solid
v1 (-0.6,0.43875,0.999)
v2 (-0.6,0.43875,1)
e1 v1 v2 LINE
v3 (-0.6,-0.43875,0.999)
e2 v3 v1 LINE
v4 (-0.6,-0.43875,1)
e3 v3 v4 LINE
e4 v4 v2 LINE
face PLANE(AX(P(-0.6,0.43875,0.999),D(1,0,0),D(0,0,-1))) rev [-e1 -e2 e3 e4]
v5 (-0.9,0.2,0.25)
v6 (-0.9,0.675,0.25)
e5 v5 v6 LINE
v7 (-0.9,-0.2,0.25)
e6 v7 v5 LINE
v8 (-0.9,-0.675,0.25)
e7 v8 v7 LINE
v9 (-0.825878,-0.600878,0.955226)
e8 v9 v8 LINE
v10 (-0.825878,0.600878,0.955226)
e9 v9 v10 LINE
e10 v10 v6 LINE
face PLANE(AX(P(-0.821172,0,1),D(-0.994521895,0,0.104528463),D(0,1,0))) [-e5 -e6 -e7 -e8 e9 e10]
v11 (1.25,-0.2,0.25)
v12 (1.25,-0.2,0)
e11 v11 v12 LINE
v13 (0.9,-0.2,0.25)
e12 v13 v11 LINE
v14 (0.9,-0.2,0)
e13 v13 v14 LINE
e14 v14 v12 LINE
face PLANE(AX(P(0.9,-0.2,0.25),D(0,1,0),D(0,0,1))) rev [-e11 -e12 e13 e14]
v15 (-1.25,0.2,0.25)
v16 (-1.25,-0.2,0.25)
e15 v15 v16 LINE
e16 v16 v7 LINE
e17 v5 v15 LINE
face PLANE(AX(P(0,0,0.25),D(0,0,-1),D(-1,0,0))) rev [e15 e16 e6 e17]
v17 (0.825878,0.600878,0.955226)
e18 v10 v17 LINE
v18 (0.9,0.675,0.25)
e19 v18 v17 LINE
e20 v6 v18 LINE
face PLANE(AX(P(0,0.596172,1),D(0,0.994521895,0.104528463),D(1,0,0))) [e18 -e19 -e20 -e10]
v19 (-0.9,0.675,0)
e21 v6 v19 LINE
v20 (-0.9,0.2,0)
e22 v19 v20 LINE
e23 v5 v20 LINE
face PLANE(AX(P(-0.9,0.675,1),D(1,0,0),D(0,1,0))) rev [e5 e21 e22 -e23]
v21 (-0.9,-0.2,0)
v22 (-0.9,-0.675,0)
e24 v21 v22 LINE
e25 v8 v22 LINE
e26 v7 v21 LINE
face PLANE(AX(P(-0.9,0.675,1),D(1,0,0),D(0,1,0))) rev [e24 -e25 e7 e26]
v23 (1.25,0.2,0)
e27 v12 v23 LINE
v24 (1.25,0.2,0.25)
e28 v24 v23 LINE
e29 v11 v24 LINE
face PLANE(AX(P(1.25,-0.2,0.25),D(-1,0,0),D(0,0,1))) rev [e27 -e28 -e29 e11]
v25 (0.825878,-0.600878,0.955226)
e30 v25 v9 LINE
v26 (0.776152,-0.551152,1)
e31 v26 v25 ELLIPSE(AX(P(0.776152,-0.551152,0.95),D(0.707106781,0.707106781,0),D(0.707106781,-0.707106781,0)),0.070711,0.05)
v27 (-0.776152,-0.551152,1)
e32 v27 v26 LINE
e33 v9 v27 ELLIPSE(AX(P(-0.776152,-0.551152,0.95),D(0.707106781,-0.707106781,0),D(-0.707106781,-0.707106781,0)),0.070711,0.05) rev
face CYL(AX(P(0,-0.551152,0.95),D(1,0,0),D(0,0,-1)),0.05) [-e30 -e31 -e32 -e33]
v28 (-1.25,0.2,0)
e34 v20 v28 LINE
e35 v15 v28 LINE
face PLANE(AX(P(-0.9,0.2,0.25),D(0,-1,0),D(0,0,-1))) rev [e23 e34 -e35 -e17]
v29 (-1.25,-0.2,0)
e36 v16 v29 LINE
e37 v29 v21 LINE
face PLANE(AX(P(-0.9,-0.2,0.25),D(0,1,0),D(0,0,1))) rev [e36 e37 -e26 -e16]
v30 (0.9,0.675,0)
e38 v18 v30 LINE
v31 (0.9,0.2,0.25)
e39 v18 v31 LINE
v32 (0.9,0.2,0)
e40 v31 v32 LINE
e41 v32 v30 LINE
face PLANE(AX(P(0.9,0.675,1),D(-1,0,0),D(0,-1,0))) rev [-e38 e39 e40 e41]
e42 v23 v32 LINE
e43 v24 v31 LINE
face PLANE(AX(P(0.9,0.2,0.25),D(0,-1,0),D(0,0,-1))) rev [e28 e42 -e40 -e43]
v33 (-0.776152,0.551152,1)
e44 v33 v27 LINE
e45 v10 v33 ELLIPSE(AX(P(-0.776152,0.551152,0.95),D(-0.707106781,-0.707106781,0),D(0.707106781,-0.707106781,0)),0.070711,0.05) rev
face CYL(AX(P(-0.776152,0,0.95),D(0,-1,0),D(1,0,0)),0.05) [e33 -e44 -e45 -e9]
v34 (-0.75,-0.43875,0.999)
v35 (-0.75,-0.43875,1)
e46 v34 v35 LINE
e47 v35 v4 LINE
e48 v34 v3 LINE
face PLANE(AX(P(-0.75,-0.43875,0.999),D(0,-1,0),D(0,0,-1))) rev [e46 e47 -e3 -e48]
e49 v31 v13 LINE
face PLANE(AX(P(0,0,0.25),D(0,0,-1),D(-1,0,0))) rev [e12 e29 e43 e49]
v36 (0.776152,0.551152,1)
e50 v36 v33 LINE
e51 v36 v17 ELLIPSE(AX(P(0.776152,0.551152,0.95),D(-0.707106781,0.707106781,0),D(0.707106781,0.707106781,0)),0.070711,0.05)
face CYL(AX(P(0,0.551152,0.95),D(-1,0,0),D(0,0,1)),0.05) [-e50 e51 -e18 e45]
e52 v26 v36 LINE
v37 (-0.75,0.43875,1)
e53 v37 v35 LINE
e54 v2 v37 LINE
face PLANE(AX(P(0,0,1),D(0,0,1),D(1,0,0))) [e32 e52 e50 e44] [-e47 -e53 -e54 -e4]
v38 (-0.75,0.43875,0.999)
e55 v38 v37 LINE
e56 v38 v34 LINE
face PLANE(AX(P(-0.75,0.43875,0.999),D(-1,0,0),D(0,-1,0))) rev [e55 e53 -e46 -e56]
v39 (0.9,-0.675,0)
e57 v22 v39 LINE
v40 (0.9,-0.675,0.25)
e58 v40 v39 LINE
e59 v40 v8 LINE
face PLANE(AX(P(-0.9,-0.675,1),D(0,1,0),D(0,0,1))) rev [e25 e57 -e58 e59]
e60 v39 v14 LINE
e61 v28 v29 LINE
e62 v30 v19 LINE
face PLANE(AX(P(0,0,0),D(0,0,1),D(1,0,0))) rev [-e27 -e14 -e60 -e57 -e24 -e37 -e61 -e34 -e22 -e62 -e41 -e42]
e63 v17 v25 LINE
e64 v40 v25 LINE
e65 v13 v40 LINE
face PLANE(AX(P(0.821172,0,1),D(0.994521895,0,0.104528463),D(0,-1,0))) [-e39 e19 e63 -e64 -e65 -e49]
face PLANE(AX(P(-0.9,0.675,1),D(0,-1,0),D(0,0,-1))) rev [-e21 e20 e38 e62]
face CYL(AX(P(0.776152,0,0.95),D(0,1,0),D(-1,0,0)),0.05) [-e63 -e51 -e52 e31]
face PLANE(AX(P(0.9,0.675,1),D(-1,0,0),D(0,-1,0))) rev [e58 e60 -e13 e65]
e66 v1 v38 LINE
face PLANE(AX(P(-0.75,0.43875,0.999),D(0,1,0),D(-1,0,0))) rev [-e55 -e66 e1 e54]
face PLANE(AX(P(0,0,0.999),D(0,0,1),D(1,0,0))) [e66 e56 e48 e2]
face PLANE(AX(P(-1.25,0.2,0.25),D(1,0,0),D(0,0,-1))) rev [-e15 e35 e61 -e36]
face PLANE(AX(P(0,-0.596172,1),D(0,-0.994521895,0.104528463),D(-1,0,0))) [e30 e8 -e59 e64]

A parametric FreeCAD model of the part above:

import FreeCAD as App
import Part
import Sketcher


def edges_at(feature, points):
    """Names of the edges that pass closest to the given points."""
    edges = feature.Shape.Edges
    near = lambda p: min(range(len(edges)), key=lambda i: edges[i].distToShape(Part.Vertex(*p))[0])
    return sorted({f"Edge{near(p) + 1}" for p in points})


def add_polygon(sketch, points):
    """Adds a closed chain of lines whose ends are joined by coincident constraints."""
    first, n = sketch.GeometryCount, len(points)
    for a, b in zip(points, points[1:] + points[:1]):
        sketch.addGeometry(Part.LineSegment(App.Vector(*a, 0), App.Vector(*b, 0)), False)
    for i in range(n):
        sketch.addConstraint(Sketcher.Constraint("Coincident", first + i, 2, first + (i + 1) % n, 1))

doc = App.newDocument("Part")
body = doc.addObject("PartDesign::Body", "Body")

sketch1 = body.newObject("Sketcher::SketchObject", "Sketch")
sketch1.AttachmentSupport = (doc.getObject("XY_Plane"), [""])
sketch1.MapMode = "FlatFace"
add_polygon(sketch1, [(-0.9, 0.675), (-0.9, -0.675), (0.9, -0.675), (0.9, 0.675)])
sketch1.addConstraint([
    Sketcher.Constraint("Vertical", 0),
    Sketcher.Constraint("Horizontal", 1),
    Sketcher.Constraint("Vertical", 2),
    Sketcher.Constraint("Horizontal", 3),
    Sketcher.Constraint("Symmetric", 0, 2, 2, 2, -1, 1),
    Sketcher.Constraint("DistanceX", 1, 1, 1, 2, 1.8),
    Sketcher.Constraint("DistanceY", 0, 2, 0, 1, 1.35),
])
pad1 = body.newObject("PartDesign::Pad", "Pad")
pad1.Profile = sketch1
pad1.Length = 1
doc.recompute()

chamfer = body.newObject("PartDesign::Chamfer", "Chamfer")
chamfer.Base = (pad1, edges_at(pad1, [(-0.9, 0, 1)]))
chamfer.ChamferType = "Two distances"
chamfer.Size = 0.75
chamfer.Size2 = 0.078828
doc.recompute()

chamfer2 = body.newObject("PartDesign::Chamfer", "Chamfer001")
chamfer2.Base = (chamfer, edges_at(chamfer, [(0.039, -0.675, 1)]))
chamfer2.ChamferType = "Two distances"
chamfer2.Size = 0.75
chamfer2.Size2 = 0.078828
doc.recompute()

chamfer3 = body.newObject("PartDesign::Chamfer", "Chamfer002")
chamfer3.Base = (chamfer2, edges_at(chamfer2, [(0.9, 0.039, 1)]))
chamfer3.ChamferType = "Two distances"
chamfer3.Size = 0.75
chamfer3.Size2 = 0.078828
chamfer3.FlipDirection = True
doc.recompute()

chamfer4 = body.newObject("PartDesign::Chamfer", "Chamfer003")
chamfer4.Base = (chamfer3, edges_at(chamfer3, [(0, 0.675, 1)]))
chamfer4.ChamferType = "Two distances"
chamfer4.Size = 0.75
chamfer4.Size2 = 0.078828
chamfer4.FlipDirection = True
doc.recompute()

fillet = body.newObject("PartDesign::Fillet", "Fillet")
fillet.Base = (chamfer4, edges_at(chamfer4, [
    (0.821, 0, 1),
    (0, 0.596, 1),
    (-0.821, 0, 1),
    (0, -0.596, 1),
]))
fillet.Radius = 0.05

sketch2 = body.newObject("Sketcher::SketchObject", "Sketch001")
sketch2.AttachmentSupport = (doc.getObject("XY_Plane"), [""])
sketch2.MapMode = "FlatFace"
sketch2.AttachmentOffset = App.Placement(App.Vector(0, 0, 1), App.Rotation())
add_polygon(sketch2, [(-0.75, 0.43875), (-0.75, -0.43875), (-0.6, -0.43875), (-0.6, 0.43875)])
sketch2.addConstraint([
    Sketcher.Constraint("Vertical", 0),
    Sketcher.Constraint("Horizontal", 1),
    Sketcher.Constraint("Vertical", 2),
    Sketcher.Constraint("Horizontal", 3),
    Sketcher.Constraint("DistanceX", 1, 1, 1, 2, 0.15),
    Sketcher.Constraint("DistanceX", 1, 2, -1, 1, 0.6),
    Sketcher.Constraint("DistanceY", 0, 2, 0, 1, 0.8775),
    Sketcher.Constraint("DistanceY", 0, 2, -1, 1, 0.43875),
])
pocket1 = body.newObject("PartDesign::Pocket", "Pocket")
pocket1.Profile = sketch2
pocket1.Length = 0.001

sketch3 = body.newObject("Sketcher::SketchObject", "Sketch002")
sketch3.AttachmentSupport = (doc.getObject("XY_Plane"), [""])
sketch3.MapMode = "FlatFace"
add_polygon(sketch3, [(0.9, 0.2), (0.9, -0.2), (1.25, -0.2), (1.25, 0.2)])
add_polygon(sketch3, [(-1.25, 0.2), (-1.25, -0.2), (-0.9, -0.2), (-0.9, 0.2)])
sketch3.addConstraint([
    Sketcher.Constraint("Vertical", 0),
    Sketcher.Constraint("Horizontal", 1),
    Sketcher.Constraint("Vertical", 2),
    Sketcher.Constraint("Horizontal", 3),
    Sketcher.Constraint("Vertical", 4),
    Sketcher.Constraint("Horizontal", 5),
    Sketcher.Constraint("Vertical", 6),
    Sketcher.Constraint("Horizontal", 7),
    Sketcher.Constraint("Symmetric", 2, 2, 4, 2, -1, 1),
    Sketcher.Constraint("Symmetric", 0, 2, 6, 2, -1, 1),
    Sketcher.Constraint("Horizontal", 1, 2, 4, 2),
    Sketcher.Constraint("DistanceY", 0, 2, 0, 1, 0.4),
    Sketcher.Constraint("DistanceX", 1, 1, 1, 2, 0.35),
    Sketcher.Constraint("DistanceX", -1, 1, 0, 2, 0.9),
])
pad2 = body.newObject("PartDesign::Pad", "Pad001")
pad2.Profile = sketch3
pad2.Length = 0.25

doc.recompute()
